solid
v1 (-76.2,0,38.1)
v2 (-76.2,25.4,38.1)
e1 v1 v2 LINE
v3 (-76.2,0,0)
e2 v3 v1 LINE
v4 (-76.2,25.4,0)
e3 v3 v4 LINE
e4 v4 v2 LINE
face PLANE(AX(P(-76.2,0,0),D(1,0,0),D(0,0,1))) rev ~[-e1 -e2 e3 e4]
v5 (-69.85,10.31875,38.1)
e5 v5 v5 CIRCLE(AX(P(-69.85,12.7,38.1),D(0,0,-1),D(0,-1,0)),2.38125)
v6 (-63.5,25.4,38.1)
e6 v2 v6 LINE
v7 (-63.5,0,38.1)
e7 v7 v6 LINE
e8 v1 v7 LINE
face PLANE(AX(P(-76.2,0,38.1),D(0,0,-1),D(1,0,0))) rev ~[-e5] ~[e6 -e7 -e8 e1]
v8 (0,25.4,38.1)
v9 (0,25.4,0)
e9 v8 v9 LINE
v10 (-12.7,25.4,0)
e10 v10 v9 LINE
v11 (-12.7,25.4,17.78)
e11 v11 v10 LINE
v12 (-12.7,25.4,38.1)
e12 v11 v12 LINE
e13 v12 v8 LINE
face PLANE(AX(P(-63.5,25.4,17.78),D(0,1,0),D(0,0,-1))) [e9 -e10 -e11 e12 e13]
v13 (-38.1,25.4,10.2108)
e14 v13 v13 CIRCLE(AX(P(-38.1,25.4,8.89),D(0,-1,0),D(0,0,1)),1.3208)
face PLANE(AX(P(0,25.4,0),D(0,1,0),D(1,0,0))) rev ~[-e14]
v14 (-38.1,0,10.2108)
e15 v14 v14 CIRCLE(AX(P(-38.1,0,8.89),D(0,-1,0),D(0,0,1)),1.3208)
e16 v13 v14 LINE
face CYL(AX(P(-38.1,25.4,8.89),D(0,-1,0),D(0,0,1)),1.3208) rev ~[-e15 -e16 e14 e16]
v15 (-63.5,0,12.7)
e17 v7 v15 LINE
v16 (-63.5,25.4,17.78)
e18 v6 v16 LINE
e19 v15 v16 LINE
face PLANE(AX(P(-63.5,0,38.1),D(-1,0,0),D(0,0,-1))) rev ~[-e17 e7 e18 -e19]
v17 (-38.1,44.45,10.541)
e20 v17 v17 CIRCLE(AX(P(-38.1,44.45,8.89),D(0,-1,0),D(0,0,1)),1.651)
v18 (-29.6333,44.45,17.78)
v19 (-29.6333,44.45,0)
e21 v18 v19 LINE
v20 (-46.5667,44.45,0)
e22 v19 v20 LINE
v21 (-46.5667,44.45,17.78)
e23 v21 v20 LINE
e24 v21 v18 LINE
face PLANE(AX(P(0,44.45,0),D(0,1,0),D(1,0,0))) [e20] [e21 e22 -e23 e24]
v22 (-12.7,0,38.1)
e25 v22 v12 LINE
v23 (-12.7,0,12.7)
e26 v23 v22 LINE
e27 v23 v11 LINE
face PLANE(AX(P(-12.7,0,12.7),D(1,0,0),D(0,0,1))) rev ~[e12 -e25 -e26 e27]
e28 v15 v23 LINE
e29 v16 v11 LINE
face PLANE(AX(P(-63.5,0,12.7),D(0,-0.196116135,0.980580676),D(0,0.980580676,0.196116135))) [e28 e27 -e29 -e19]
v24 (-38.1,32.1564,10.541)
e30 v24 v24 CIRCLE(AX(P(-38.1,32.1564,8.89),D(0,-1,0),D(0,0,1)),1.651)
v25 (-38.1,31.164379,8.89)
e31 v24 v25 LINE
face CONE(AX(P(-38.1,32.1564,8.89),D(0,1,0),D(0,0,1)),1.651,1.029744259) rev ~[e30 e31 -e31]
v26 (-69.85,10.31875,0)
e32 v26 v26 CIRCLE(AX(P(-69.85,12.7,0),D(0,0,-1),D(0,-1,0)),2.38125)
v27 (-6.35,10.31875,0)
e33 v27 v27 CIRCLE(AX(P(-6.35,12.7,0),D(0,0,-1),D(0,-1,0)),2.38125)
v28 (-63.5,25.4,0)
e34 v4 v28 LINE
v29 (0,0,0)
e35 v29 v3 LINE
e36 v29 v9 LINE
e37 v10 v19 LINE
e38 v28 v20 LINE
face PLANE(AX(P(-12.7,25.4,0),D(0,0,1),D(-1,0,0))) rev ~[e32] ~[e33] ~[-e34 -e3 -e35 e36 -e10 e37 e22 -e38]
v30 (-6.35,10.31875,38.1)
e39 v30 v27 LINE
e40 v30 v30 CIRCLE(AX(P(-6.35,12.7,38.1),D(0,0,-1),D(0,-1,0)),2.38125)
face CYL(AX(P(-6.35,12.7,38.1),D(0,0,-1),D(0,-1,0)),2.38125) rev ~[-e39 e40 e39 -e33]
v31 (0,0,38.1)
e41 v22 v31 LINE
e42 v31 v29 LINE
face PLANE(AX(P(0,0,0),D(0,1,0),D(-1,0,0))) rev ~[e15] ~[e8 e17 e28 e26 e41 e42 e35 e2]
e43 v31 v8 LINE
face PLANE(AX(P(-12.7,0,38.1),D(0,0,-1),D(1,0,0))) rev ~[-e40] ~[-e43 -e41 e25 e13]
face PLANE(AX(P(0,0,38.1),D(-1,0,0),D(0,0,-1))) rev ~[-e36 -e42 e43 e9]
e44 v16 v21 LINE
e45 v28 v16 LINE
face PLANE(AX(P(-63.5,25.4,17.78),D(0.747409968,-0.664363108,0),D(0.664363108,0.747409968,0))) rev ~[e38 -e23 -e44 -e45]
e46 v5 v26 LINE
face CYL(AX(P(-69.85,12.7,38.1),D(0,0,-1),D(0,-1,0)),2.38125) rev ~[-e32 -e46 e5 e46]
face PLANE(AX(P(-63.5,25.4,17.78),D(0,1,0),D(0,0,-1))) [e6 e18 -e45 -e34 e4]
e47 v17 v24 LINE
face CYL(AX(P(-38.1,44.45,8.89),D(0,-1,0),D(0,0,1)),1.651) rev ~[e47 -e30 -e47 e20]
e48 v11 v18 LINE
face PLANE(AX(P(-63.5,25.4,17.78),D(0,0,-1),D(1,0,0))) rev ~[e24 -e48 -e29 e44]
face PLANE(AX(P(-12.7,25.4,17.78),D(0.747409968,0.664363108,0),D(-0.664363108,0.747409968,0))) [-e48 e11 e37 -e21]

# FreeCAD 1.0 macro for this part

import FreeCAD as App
import Part
import Sketcher
Q = App.Units.Quantity

doc = App.newDocument("Part")
body = doc.addObject("PartDesign::Body", "Body")

# Sketch on XZ plane
sketch1 = body.newObject("Sketcher::SketchObject", "Sketch")
sketch1.AttachmentSupport = (doc.getObject("XZ_Plane"), [""])
sketch1.MapMode = "FlatFace"
sketch1.addGeometry([
    Part.LineSegment(App.Vector(0, 38, 0), App.Vector(0, 0, 0)),  # 0
    Part.LineSegment(App.Vector(0, 0, 0), App.Vector(-76, 0, 0)),  # 1
    Part.LineSegment(App.Vector(-76, 0, 0), App.Vector(-76, 38, 0)),  # 2
    Part.LineSegment(App.Vector(-76, 38, 0), App.Vector(-64, 38, 0)),  # 3
    Part.LineSegment(App.Vector(-64, 38, 0), App.Vector(-64, 13, 0)),  # 4
    Part.LineSegment(App.Vector(-64, 13, 0), App.Vector(-13, 13, 0)),  # 5
    Part.LineSegment(App.Vector(-13, 13, 0), App.Vector(-13, 38, 0)),  # 6
    Part.LineSegment(App.Vector(-13, 38, 0), App.Vector(0, 38, 0)),  # 7
], False)
sketch1.addConstraint([
    Sketcher.Constraint("Coincident", 0, 2, 1, 1),
    Sketcher.Constraint("Coincident", 1, 2, 2, 1),
    Sketcher.Constraint("Coincident", 2, 2, 3, 1),
    Sketcher.Constraint("Coincident", 3, 2, 4, 1),
    Sketcher.Constraint("Coincident", 4, 2, 5, 1),
    Sketcher.Constraint("Coincident", 5, 2, 6, 1),
    Sketcher.Constraint("Coincident", 6, 2, 7, 1),
    Sketcher.Constraint("Coincident", 7, 2, 0, 1),
    Sketcher.Constraint("Vertical", 0),
    Sketcher.Constraint("Horizontal", 1),
    Sketcher.Constraint("Vertical", 2),
    Sketcher.Constraint("Horizontal", 3),
    Sketcher.Constraint("Vertical", 4),
    Sketcher.Constraint("Horizontal", 5),
    Sketcher.Constraint("Vertical", 6),
    Sketcher.Constraint("Horizontal", 7),
    Sketcher.Constraint("Coincident", 0, 2, -1, 1),
    Sketcher.Constraint("Horizontal", 3, 2, 6, 2),
    Sketcher.Constraint("Equal", 3, 7),
    Sketcher.Constraint("DistanceX", 5, 1, 5, 2, Q("2 in")),
    Sketcher.Constraint("DistanceX", 3, 1, 3, 2, Q("0.5 in")),
    Sketcher.Constraint("DistanceY", 0, 2, 0, 1, Q("1.5 in")),
    Sketcher.Constraint("DistanceY", -1, 1, 4, 2, Q("0.5 in")),
])
pad1 = body.newObject("PartDesign::Pad", "Pad")
pad1.Profile = sketch1
pad1.Length = Q("1 in")
pad1.Reversed = True

# Sketch on YZ plane
sketch2 = body.newObject("Sketcher::SketchObject", "Sketch001")
sketch2.AttachmentSupport = (doc.getObject("YZ_Plane"), [""])
sketch2.MapMode = "FlatFace"
sketch2.AttachmentOffset = App.Placement(App.Vector(0, 0, -2.5 * 25.4), App.Rotation())
sketch2.addGeometry([
    Part.LineSegment(App.Vector(25, 18, 0), App.Vector(0, 13, 0)),
    Part.LineSegment(App.Vector(0, 13, 0), App.Vector(25, 13, 0)),
    Part.LineSegment(App.Vector(25, 13, 0), App.Vector(25, 18, 0)),
], False)
sketch2.addConstraint([
    Sketcher.Constraint("Coincident", 0, 2, 1, 1),
    Sketcher.Constraint("Coincident", 1, 2, 2, 1),
    Sketcher.Constraint("Coincident", 2, 2, 0, 1),
    Sketcher.Constraint("Horizontal", 1),
    Sketcher.Constraint("Vertical", 2),
    Sketcher.Constraint("PointOnObject", 0, 2, -2),
    Sketcher.Constraint("DistanceY", 2, 1, 2, 2, Q("0.2 in")),
    Sketcher.Constraint("DistanceX", 1, 1, 1, 2, Q("1 in")),
    Sketcher.Constraint("DistanceY", -1, 1, 0, 2, Q("0.5 in")),
])
pad2 = body.newObject("PartDesign::Pad", "Pad001")
pad2.Profile = sketch2
pad2.Length = Q("2 in")

# Sketch on XY plane
sketch3 = body.newObject("Sketcher::SketchObject", "Sketch002")
sketch3.AttachmentSupport = (doc.getObject("XY_Plane"), [""])
sketch3.MapMode = "FlatFace"
sketch3.AttachmentOffset = App.Placement(App.Vector(0, 0, 1.5 * 25.4), App.Rotation())
sketch3.addGeometry([
    Part.Circle(App.Vector(-69.8, 12.7, 0), App.Vector(0, 0, 1), 2.4),
    Part.Circle(App.Vector(-6.3, 12.7, 0), App.Vector(0, 0, 1), 2.4),
], False)
sketch3.addConstraint([
    Sketcher.Constraint("Equal", 0, 1),
    Sketcher.Constraint("Horizontal", 0, 3, 1, 3),
    Sketcher.Constraint("Diameter", 0, Q("0.1875 in")),
    Sketcher.Constraint("DistanceY", -1, 1, 0, 3, Q("0.5 in")),
    Sketcher.Constraint("DistanceX", 0, 3, 1, 3, Q("2.5 in")),
    Sketcher.Constraint("DistanceX", 0, 3, -1, 1, Q("2.75 in")),
])
doc.recompute()
hole = body.newObject("PartDesign::Hole", "Hole")
hole.Profile = sketch3
hole.ThreadType = "None"
hole.Diameter = Q("0.1875 in")
hole.DepthType = "ThroughAll"

# Sketch on XZ plane
sketch4 = body.newObject("Sketcher::SketchObject", "Sketch003")
sketch4.AttachmentSupport = (doc.getObject("XZ_Plane"), [""])
sketch4.MapMode = "FlatFace"
sketch4.AttachmentOffset = App.Placement(App.Vector(0, 0, -1 * 25.4), App.Rotation())
sketch4.addGeometry(Part.Circle(App.Vector(-38.1, 8.9, 0), App.Vector(0, 0, 1), 1.3), False)
sketch4.addConstraint([
    Sketcher.Constraint("Diameter", 0, Q("0.104 in")),
    Sketcher.Constraint("DistanceX", 0, 3, -1, 1, Q("1.5 in")),
    Sketcher.Constraint("DistanceY", -1, 1, 0, 3, Q("0.35 in")),
])
doc.recompute()
hole2 = body.newObject("PartDesign::Hole", "Hole001")
hole2.Profile = sketch4
hole2.ThreadType = "None"
hole2.Diameter = Q("0.104 in")
hole2.DepthType = "ThroughAll"
hole2.Reversed = True

# Sketch on XZ plane
sketch5 = body.newObject("Sketcher::SketchObject", "Sketch004")
sketch5.AttachmentSupport = (doc.getObject("XZ_Plane"), [""])
sketch5.MapMode = "FlatFace"
sketch5.AttachmentOffset = App.Placement(App.Vector(0, 0, -1 * 25.4), App.Rotation())
sketch5.addGeometry([
    Part.LineSegment(App.Vector(-64, 0, 0), App.Vector(-64, 18, 0)),
    Part.LineSegment(App.Vector(-64, 18, 0), App.Vector(-13, 18, 0)),
    Part.LineSegment(App.Vector(-13, 18, 0), App.Vector(-13, 0, 0)),
    Part.LineSegment(App.Vector(-13, 0, 0), App.Vector(-64, 0, 0)),
], False)
sketch5.addConstraint([
    Sketcher.Constraint("Coincident", 0, 2, 1, 1),
    Sketcher.Constraint("Coincident", 1, 2, 2, 1),
    Sketcher.Constraint("Coincident", 2, 2, 3, 1),
    Sketcher.Constraint("Coincident", 3, 2, 0, 1),
    Sketcher.Constraint("Vertical", 0),
    Sketcher.Constraint("Horizontal", 1),
    Sketcher.Constraint("Vertical", 2),
    Sketcher.Constraint("Horizontal", 3),
    Sketcher.Constraint("PointOnObject", 2, 2, -1),
    Sketcher.Constraint("DistanceX", 1, 2, -1, 1, Q("0.5 in")),
    Sketcher.Constraint("DistanceX", 1, 1, 1, 2, Q("2 in")),
    Sketcher.Constraint("DistanceY", 0, 1, 0, 2, Q("0.7 in")),
])
pad3 = body.newObject("PartDesign::Pad", "Pad002")
pad3.Profile = sketch5
pad3.Length = Q("0.75 in")
pad3.Reversed = True

# Sketch on XY plane
sketch6 = body.newObject("Sketcher::SketchObject", "Sketch005")
sketch6.AttachmentSupport = (doc.getObject("XY_Plane"), [""])
sketch6.MapMode = "FlatFace"
sketch6.AttachmentOffset = App.Placement(App.Vector(0, 0, 0.7 * 25.4), App.Rotation())
sketch6.addGeometry([
    Part.LineSegment(App.Vector(-64, 44, 0), App.Vector(-64, 25, 0)),  # 0
    Part.LineSegment(App.Vector(-64, 25, 0), App.Vector(-47, 44, 0)),  # 1
    Part.LineSegment(App.Vector(-47, 44, 0), App.Vector(-64, 44, 0)),  # 2
    Part.LineSegment(App.Vector(-30, 44, 0), App.Vector(-13, 25, 0)),  # 3
    Part.LineSegment(App.Vector(-13, 25, 0), App.Vector(-13, 44, 0)),  # 4
    Part.LineSegment(App.Vector(-13, 44, 0), App.Vector(-30, 44, 0)),  # 5
], False)
sketch6.addConstraint([
    Sketcher.Constraint("Coincident", 0, 2, 1, 1),
    Sketcher.Constraint("Coincident", 1, 2, 2, 1),
    Sketcher.Constraint("Coincident", 2, 2, 0, 1),
    Sketcher.Constraint("Coincident", 3, 2, 4, 1),
    Sketcher.Constraint("Coincident", 4, 2, 5, 1),
    Sketcher.Constraint("Coincident", 5, 2, 3, 1),
    Sketcher.Constraint("Vertical", 0),
    Sketcher.Constraint("Horizontal", 2),
    Sketcher.Constraint("Vertical", 4),
    Sketcher.Constraint("Horizontal", 5),
    Sketcher.Constraint("Horizontal", 0, 2, 3, 2),
    Sketcher.Constraint("Horizontal", 2, 2, 4, 2),
    Sketcher.Constraint("Equal", 2, 5),
    Sketcher.Constraint("DistanceX", 0, 2, 3, 2, Q("2 in")),
    Sketcher.Constraint("DistanceY", -1, 1, 0, 2, Q("1 in")),
    Sketcher.Constraint("DistanceX", 2, 2, 2, 1, Q("16.9333 mm")),
    Sketcher.Constraint("DistanceY", 0, 2, 0, 1, Q("0.75 in")),
    Sketcher.Constraint("DistanceX", 0, 2, -1, 1, Q("2.5 in")),
])
pocket1 = body.newObject("PartDesign::Pocket", "Pocket")
pocket1.Profile = sketch6
pocket1.Length = Q("0.75 in")

# Sketch on XZ plane
sketch7 = body.newObject("Sketcher::SketchObject", "Sketch006")
sketch7.AttachmentSupport = (doc.getObject("XZ_Plane"), [""])
sketch7.MapMode = "FlatFace"
sketch7.AttachmentOffset = App.Placement(App.Vector(0, 0, -1.75 * 25.4), App.Rotation())
sketch7.addGeometry(Part.Circle(App.Vector(-38.1, 8.9, 0), App.Vector(0, 0, 1), 1.7), False)
sketch7.addConstraint([
    Sketcher.Constraint("Diameter", 0, Q("0.13 in")),
    Sketcher.Constraint("DistanceX", 0, 3, -1, 1, Q("1.5 in")),
    Sketcher.Constraint("DistanceY", -1, 1, 0, 3, Q("0.35 in")),
])
doc.recompute()
hole3 = body.newObject("PartDesign::Hole", "Hole002")
hole3.Profile = sketch7
hole3.ThreadType = "None"
hole3.Diameter = Q("0.13 in")
hole3.DepthType = "Dimension"
hole3.Depth = Q("0.484 in")
hole3.DrillPoint = "Angled"
hole3.DrillPointAngle = 118
hole3.Reversed = True

doc.recompute()
